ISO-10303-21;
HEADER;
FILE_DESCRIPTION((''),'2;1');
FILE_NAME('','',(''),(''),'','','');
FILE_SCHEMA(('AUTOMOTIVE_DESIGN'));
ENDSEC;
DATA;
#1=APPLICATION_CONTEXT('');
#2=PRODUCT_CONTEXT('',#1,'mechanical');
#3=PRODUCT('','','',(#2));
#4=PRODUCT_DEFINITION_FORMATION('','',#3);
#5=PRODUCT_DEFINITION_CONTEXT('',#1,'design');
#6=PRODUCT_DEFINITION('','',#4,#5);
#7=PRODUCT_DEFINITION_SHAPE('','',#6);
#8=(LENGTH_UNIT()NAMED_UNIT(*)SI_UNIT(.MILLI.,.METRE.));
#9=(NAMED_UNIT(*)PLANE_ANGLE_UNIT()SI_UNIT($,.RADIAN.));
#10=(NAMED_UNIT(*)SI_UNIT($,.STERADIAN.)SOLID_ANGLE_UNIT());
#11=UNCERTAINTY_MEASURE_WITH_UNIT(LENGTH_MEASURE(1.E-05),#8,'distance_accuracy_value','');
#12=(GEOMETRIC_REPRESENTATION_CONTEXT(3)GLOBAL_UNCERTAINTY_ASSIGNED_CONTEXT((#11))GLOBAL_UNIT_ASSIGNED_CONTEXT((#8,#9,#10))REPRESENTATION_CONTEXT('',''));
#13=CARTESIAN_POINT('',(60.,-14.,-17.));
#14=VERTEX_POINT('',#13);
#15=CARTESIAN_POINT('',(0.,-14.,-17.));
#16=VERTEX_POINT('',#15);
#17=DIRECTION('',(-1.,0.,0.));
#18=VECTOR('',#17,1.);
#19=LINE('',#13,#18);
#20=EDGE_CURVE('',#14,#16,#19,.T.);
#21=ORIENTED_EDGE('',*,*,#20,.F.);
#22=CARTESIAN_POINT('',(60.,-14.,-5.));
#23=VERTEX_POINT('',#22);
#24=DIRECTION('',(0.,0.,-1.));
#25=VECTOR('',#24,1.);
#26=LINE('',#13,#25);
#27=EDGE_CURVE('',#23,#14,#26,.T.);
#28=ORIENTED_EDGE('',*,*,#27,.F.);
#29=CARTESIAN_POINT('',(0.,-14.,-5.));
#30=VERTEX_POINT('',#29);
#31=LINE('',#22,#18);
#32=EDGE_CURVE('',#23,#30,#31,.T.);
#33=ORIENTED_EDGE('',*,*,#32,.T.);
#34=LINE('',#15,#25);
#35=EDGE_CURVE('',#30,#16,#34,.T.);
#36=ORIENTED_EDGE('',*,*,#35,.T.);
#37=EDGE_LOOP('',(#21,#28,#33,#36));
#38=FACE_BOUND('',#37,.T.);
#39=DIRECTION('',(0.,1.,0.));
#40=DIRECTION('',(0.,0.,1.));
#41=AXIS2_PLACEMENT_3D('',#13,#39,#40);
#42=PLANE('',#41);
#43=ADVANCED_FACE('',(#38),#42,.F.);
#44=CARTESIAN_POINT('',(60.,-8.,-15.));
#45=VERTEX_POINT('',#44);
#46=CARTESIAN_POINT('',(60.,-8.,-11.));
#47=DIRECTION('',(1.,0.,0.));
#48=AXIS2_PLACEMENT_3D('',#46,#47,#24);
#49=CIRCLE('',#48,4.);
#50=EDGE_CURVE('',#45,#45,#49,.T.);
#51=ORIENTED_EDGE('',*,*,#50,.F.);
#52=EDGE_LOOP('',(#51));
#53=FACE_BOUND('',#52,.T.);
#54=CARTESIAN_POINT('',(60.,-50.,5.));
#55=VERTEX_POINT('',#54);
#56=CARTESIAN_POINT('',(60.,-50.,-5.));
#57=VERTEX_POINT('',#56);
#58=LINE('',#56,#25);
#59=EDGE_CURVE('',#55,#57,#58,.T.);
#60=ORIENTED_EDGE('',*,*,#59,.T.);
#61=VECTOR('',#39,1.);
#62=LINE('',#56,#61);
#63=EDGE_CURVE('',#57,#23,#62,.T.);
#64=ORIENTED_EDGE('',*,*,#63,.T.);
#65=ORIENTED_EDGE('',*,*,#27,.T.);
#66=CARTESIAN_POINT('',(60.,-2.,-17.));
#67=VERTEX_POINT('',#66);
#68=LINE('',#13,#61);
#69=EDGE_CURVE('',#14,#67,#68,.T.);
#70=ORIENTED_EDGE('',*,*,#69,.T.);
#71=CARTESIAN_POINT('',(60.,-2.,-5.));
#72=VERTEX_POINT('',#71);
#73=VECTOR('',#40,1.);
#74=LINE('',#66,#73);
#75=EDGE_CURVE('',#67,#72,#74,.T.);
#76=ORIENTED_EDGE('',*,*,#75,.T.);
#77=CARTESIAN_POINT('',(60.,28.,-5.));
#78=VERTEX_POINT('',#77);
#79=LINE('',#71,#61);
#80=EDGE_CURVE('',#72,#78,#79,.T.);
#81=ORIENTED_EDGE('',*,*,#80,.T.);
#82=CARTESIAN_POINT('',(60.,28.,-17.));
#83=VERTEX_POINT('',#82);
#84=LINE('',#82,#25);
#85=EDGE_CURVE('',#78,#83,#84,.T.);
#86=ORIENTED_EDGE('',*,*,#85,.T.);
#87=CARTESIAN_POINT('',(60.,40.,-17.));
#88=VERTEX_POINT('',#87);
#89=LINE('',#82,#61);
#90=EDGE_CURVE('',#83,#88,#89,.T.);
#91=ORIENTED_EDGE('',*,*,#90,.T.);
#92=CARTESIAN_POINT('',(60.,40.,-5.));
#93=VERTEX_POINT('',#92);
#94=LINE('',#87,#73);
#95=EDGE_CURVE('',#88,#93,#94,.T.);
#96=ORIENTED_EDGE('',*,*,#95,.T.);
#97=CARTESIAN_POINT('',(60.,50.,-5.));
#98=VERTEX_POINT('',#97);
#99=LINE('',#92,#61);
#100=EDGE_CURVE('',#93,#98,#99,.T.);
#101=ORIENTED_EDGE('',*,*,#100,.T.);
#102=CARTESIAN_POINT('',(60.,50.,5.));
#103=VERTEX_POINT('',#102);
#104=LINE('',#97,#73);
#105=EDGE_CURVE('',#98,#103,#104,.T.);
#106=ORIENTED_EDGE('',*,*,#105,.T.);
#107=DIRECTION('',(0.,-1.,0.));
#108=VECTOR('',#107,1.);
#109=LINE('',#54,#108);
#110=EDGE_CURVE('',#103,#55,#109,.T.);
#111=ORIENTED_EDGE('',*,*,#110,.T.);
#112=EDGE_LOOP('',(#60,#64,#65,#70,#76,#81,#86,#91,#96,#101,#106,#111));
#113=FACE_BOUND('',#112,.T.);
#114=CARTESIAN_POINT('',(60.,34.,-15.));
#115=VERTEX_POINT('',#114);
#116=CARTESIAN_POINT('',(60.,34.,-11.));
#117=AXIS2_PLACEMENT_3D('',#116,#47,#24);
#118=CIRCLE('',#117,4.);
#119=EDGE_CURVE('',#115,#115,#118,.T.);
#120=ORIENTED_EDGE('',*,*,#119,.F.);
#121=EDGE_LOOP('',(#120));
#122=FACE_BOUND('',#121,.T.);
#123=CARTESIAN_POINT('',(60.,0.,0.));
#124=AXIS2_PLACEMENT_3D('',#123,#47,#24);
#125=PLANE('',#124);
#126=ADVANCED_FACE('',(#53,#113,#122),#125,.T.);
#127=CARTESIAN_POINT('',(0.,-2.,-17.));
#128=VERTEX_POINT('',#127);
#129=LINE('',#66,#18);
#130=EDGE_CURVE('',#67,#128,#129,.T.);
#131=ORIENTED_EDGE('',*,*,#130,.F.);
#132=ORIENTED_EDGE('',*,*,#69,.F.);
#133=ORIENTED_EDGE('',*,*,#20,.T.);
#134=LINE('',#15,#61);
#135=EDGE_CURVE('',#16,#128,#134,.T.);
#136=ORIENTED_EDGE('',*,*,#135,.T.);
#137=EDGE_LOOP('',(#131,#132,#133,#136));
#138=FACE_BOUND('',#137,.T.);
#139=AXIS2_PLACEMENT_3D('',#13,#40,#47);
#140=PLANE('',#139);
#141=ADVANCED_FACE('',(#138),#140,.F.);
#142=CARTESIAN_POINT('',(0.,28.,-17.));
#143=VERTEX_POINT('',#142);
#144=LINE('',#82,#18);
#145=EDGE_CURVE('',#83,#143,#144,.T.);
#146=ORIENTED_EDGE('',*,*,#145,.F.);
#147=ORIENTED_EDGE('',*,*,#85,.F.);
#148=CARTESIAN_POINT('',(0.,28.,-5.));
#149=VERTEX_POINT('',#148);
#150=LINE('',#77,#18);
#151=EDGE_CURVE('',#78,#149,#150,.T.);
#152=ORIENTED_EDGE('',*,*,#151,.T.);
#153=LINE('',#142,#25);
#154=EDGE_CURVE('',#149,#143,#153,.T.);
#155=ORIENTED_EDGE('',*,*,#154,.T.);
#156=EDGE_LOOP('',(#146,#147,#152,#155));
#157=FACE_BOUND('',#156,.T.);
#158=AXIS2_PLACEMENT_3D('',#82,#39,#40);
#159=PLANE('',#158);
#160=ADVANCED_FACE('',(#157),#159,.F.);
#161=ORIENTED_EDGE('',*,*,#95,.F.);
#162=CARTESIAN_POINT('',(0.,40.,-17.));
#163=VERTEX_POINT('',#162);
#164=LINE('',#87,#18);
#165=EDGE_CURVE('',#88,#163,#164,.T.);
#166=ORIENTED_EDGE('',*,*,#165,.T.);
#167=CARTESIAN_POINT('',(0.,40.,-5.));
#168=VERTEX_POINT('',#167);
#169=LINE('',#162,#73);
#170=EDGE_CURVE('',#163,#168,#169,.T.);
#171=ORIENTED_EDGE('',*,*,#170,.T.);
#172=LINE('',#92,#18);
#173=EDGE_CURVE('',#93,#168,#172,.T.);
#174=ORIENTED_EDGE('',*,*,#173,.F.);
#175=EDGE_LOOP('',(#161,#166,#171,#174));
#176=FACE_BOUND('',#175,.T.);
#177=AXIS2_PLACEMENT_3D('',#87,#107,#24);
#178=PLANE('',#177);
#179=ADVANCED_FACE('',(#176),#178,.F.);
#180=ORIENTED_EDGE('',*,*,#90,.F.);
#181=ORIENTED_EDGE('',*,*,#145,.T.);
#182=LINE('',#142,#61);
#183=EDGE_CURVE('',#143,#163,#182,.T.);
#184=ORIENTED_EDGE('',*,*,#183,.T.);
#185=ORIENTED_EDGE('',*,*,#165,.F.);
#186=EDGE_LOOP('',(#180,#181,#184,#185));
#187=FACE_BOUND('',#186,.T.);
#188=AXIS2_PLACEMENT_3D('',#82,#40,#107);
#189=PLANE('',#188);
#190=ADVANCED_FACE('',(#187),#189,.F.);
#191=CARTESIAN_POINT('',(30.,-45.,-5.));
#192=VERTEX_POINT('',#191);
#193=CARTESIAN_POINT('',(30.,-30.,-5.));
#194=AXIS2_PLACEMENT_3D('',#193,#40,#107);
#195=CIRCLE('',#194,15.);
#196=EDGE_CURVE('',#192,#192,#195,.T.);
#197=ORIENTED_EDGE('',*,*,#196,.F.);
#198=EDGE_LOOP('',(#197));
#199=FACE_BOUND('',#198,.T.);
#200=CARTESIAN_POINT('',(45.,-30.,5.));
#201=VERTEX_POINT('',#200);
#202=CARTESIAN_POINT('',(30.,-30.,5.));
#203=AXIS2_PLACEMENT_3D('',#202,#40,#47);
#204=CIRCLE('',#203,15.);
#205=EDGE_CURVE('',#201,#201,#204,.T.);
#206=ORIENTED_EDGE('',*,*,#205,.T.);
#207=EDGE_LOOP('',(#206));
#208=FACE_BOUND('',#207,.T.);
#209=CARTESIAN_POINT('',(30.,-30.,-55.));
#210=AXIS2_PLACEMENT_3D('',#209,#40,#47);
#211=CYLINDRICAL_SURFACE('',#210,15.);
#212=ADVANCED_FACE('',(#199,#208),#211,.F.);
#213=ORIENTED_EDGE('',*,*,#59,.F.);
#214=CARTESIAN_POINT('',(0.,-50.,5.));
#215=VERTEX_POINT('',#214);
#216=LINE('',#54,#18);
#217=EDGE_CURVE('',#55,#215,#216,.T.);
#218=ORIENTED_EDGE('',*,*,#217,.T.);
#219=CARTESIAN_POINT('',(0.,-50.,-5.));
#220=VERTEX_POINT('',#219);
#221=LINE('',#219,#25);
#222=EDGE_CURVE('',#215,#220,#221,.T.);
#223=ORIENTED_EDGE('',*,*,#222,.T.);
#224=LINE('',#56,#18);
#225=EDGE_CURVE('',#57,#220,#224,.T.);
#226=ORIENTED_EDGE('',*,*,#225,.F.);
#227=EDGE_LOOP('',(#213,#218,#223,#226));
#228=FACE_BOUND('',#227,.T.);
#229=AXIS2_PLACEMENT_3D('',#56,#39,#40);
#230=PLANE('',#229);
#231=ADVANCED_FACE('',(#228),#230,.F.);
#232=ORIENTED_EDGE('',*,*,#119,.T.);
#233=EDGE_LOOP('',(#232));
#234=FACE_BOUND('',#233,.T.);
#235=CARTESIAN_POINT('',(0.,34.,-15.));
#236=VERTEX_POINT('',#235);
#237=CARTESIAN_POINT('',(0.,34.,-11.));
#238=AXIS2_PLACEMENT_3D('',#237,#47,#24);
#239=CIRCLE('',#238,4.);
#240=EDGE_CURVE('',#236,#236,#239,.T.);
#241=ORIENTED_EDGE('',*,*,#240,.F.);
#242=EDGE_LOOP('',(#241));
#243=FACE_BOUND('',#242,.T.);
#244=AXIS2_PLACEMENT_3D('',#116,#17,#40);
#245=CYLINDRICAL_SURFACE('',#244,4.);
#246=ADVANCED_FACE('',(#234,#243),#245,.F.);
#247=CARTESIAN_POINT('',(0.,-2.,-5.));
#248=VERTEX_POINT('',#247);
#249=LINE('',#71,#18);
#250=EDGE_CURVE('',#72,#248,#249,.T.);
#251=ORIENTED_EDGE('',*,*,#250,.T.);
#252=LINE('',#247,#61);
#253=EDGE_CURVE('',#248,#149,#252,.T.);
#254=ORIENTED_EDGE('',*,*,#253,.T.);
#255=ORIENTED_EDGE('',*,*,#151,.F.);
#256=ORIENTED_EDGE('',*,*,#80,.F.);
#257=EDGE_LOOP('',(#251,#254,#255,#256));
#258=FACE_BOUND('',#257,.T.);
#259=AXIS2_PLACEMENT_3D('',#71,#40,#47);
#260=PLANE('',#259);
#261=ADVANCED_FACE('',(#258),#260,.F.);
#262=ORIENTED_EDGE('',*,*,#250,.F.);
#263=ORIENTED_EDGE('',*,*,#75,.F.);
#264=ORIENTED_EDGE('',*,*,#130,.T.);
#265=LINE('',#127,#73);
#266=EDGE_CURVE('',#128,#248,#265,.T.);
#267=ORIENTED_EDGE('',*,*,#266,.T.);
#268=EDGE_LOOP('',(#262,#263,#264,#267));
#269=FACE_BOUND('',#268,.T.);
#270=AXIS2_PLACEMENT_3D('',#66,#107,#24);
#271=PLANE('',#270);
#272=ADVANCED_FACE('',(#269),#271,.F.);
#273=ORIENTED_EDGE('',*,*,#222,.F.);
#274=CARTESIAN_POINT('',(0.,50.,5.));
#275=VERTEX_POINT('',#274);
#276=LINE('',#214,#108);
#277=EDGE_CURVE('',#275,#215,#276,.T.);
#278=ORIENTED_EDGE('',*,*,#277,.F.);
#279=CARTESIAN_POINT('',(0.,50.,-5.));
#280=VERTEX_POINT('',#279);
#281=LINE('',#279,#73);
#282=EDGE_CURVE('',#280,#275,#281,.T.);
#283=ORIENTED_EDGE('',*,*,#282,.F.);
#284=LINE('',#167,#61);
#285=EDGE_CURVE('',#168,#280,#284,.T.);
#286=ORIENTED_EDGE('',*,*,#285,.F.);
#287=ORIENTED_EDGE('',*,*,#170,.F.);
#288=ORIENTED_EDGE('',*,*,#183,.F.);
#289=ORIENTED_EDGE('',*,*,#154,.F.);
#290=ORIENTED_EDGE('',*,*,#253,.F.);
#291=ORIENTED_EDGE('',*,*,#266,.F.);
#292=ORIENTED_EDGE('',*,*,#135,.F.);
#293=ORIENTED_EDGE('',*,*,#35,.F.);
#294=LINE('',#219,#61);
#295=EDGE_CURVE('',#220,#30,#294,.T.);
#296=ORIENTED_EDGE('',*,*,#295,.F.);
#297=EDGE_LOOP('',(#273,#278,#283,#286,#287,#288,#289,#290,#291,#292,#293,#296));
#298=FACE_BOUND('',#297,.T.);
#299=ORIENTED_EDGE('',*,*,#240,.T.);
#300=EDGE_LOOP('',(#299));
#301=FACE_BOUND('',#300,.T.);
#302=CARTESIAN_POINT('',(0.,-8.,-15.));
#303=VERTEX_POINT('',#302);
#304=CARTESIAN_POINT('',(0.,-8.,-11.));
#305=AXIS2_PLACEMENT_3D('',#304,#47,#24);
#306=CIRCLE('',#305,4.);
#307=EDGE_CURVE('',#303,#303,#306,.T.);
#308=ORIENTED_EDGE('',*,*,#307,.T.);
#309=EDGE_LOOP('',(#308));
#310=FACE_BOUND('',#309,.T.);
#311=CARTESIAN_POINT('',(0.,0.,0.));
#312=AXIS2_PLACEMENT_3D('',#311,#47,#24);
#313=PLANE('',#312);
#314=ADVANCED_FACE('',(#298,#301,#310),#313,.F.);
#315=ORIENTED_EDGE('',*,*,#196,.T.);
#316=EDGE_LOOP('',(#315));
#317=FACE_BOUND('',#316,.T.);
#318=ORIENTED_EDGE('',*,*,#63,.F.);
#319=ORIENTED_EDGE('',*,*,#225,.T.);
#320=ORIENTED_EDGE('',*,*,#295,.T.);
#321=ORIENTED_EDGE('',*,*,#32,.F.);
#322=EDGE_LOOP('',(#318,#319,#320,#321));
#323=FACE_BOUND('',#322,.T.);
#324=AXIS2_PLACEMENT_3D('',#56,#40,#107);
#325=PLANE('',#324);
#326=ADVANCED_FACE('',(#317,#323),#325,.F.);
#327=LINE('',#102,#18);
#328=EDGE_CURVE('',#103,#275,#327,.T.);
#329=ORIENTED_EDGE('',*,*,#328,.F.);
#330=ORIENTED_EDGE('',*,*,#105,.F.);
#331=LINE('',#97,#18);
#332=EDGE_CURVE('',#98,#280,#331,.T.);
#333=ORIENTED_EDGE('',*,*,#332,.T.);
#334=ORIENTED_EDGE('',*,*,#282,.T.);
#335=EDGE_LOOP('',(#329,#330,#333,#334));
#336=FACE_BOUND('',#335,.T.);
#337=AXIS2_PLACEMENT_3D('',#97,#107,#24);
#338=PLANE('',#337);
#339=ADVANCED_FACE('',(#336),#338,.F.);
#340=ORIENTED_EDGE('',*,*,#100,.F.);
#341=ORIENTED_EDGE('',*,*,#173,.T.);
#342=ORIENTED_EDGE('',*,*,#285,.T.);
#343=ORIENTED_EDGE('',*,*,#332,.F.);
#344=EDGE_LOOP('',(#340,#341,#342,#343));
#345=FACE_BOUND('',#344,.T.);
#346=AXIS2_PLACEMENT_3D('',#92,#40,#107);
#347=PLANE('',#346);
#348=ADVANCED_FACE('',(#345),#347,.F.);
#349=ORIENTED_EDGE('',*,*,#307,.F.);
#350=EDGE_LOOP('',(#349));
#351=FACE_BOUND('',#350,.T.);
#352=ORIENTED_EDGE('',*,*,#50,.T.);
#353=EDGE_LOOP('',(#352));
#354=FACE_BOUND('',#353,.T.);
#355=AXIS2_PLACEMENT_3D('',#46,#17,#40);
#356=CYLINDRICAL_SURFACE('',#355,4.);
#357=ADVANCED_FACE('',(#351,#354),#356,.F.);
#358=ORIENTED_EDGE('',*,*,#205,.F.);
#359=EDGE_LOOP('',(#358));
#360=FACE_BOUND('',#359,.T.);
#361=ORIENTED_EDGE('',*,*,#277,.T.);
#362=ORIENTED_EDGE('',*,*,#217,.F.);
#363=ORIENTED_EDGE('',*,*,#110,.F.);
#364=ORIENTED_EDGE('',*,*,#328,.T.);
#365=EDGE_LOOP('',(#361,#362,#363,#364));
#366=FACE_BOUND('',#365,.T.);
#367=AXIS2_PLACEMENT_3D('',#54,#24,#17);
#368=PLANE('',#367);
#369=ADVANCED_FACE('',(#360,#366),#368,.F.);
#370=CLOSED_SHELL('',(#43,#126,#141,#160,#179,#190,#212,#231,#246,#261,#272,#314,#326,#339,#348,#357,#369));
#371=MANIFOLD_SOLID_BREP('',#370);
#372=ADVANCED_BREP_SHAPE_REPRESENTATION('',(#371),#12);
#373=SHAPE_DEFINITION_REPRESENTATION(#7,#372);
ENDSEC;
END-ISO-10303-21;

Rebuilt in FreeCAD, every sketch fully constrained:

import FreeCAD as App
import Part
import Sketcher

V = App.Vector


def add_polygon(sketch, points):
    """Adds a closed chain of lines whose ends are joined by coincident constraints."""
    first, n = sketch.GeometryCount, len(points)
    for a, b in zip(points, points[1:] + points[:1]):
        sketch.addGeometry(Part.LineSegment(App.Vector(*a, 0), App.Vector(*b, 0)), False)
    for i in range(n):
        sketch.addConstraint(Sketcher.Constraint("Coincident", first + i, 2, first + (i + 1) % n, 1))

doc = App.newDocument("Part")
params = doc.addObject("Spreadsheet::Sheet", "Params")
for row, (alias, value) in enumerate([
    ("sketch1_diameter", "8 mm"),
    ("sketch1_width", "30 mm"),
    ("sketch1_width2", "12 mm"),
    ("sketch1_width3", "10 mm"),
    ("sketch1_width4", "100 mm"),
    ("pad1_length", "60 mm"),
    ("sketch2_diameter", "30 mm"),
    ("pocket1_length", "60 mm"),
], start=1):
    params.set(f"A{row}", alias)
    params.set(f"B{row}", "=" + value)
    params.setAlias(f"B{row}", alias)

body = doc.addObject("PartDesign::Body", "Body")

# Sketch on YZ plane
sketch1 = body.newObject("Sketcher::SketchObject", "Sketch")
sketch1.AttachmentSupport = (doc.getObject("YZ_Plane"), [""])
sketch1.MapMode = "FlatFace"
add_polygon(sketch1, [(-2, -5), (28, -5), (28, -17), (40, -17), (40, -5), (50, -5), (50, 5), (-50, 5), (-50, -5), (-14, -5), (-14, -17), (-2, -17)])  # lines 0-11
sketch1.addGeometry(Part.Circle(V(-8, -11, 0), V(0, 0, 1), 4), False)  # 12
sketch1.addGeometry(Part.Circle(V(34, -11, 0), V(0, 0, 1), 4), False)  # 13
sketch1.addConstraint([
    Sketcher.Constraint("Horizontal", 0),
    Sketcher.Constraint("Vertical", 1),
    Sketcher.Constraint("Horizontal", 2),
    Sketcher.Constraint("Vertical", 3),
    Sketcher.Constraint("Horizontal", 4),
    Sketcher.Constraint("Vertical", 5),
    Sketcher.Constraint("Horizontal", 6),
    Sketcher.Constraint("Vertical", 7),
    Sketcher.Constraint("Horizontal", 8),
    Sketcher.Constraint("Vertical", 9),
    Sketcher.Constraint("Horizontal", 10),
    Sketcher.Constraint("Vertical", 11),
    Sketcher.Constraint("Equal", 12, 13),
    Sketcher.Constraint("Symmetric", 4, 2, 6, 2, -1, 1),
    Sketcher.Constraint("Horizontal", 12, 3, 13, 3),
    Sketcher.Constraint("Horizontal", 0, 2, 3, 2),
    Sketcher.Constraint("Horizontal", 4, 2, 7, 2),
    Sketcher.Constraint("Horizontal", 2, 2, 9, 2),
    Sketcher.Constraint("Equal", 2, 10),
    Sketcher.Constraint("Equal", 10, 1),
    Sketcher.Constraint("Equal", 4, 5),
    Sketcher.Constraint("Diameter", 12, 8.0),
    Sketcher.Constraint("DistanceX", 0, 1, 0, 2, 30.0),
    Sketcher.Constraint("DistanceX", 2, 1, 2, 2, 12.0),
    Sketcher.Constraint("DistanceX", 4, 1, 4, 2, 10.0),
    Sketcher.Constraint("DistanceX", 6, 2, 6, 1, 100.0),
    Sketcher.Constraint("DistanceX", 12, 3, -1, 1, 8.0),
    Sketcher.Constraint("DistanceY", 12, 3, -1, 1, 11.0),
    Sketcher.Constraint("DistanceX", -1, 1, 13, 3, 34.0),
])
sketch1.setExpression("Constraints[33]", "Params.sketch1_diameter")
sketch1.setExpression("Constraints[34]", "Params.sketch1_width")
sketch1.setExpression("Constraints[35]", "Params.sketch1_width2")
sketch1.setExpression("Constraints[36]", "Params.sketch1_width3")
sketch1.setExpression("Constraints[37]", "Params.sketch1_width4")
pad1 = body.newObject("PartDesign::Pad", "Pad")
pad1.Profile = sketch1
pad1.setExpression("Length", "Params.pad1_length")

# Sketch on XY plane
sketch2 = body.newObject("Sketcher::SketchObject", "Sketch001")
sketch2.AttachmentSupport = (doc.getObject("XY_Plane"), [""])
sketch2.MapMode = "FlatFace"
sketch2.AttachmentOffset = App.Placement(V(0, 0, 5), App.Rotation())
sketch2.addGeometry(Part.Circle(V(30, -30, 0), V(0, 0, 1), 15), False)
sketch2.addConstraint([
    Sketcher.Constraint("Diameter", 0, 30.0),
    Sketcher.Constraint("DistanceX", -1, 1, 0, 3, 30.0),
    Sketcher.Constraint("DistanceY", 0, 3, -1, 1, 30.0),
])
sketch2.setExpression("Constraints[0]", "Params.sketch2_diameter")
pocket1 = body.newObject("PartDesign::Pocket", "Pocket")
pocket1.Profile = sketch2
pocket1.setExpression("Length", "Params.pocket1_length")

doc.recompute()
